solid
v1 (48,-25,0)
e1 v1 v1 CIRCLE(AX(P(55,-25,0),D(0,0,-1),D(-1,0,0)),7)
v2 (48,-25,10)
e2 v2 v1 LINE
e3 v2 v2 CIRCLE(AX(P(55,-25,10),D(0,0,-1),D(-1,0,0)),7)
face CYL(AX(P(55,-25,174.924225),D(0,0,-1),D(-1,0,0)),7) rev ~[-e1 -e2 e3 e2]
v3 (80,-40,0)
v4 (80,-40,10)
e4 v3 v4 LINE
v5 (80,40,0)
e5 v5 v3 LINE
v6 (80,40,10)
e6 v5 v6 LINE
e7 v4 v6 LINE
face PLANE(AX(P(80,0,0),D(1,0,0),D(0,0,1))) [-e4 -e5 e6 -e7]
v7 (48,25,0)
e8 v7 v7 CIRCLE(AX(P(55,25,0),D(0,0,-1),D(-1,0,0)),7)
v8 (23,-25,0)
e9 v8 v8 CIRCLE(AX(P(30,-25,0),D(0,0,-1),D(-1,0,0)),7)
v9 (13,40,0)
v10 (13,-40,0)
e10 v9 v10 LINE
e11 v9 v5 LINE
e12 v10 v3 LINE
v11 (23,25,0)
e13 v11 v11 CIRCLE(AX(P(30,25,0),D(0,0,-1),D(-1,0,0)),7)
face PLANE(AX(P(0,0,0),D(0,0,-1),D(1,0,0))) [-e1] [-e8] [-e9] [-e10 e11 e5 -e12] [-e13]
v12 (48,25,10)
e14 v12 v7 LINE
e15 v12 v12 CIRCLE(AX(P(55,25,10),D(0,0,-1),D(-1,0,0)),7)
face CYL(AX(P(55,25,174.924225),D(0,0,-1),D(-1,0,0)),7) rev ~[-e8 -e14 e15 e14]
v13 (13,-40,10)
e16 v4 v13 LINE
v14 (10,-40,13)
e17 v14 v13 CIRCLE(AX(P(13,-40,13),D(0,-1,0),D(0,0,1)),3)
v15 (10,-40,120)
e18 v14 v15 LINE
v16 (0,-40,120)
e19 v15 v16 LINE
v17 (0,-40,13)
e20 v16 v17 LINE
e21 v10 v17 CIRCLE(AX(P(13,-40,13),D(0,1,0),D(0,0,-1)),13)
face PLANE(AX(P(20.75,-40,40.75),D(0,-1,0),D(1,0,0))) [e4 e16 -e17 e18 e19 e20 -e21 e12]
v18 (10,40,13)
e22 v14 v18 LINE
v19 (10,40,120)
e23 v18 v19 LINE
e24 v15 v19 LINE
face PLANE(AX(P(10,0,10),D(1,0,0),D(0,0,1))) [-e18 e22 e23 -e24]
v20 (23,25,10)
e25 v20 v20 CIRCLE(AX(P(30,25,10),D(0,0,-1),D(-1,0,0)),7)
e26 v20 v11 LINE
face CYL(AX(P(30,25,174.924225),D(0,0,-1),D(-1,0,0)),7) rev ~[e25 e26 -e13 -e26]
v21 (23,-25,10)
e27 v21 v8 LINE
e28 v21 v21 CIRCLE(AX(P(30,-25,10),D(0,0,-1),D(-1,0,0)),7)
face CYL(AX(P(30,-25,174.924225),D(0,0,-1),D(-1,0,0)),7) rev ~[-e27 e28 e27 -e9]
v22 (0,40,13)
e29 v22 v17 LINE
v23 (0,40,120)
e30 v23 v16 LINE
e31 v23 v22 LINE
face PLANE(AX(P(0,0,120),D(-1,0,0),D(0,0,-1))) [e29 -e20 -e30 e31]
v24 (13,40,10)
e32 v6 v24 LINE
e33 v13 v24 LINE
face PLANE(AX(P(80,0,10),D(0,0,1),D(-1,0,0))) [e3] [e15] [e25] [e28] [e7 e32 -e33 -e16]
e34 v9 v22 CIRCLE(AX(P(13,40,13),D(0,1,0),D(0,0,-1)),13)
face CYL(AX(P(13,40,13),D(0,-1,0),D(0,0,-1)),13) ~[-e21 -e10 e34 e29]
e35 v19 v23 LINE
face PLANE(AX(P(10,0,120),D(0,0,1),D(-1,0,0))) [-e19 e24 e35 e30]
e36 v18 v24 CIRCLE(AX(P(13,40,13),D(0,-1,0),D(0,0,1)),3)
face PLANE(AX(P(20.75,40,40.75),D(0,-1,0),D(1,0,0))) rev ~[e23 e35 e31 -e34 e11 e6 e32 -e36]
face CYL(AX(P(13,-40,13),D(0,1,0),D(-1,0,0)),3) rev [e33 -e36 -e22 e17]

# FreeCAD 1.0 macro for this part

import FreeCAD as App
import Part
import Sketcher
from FreeCAD import Vector


def edges_at(feature, points):
    """Names of the edges that pass closest to the given points."""
    edges = feature.Shape.Edges
    near = lambda p: min(range(len(edges)), key=lambda i: edges[i].distToShape(Part.Vertex(*p))[0])
    return sorted({f"Edge{near(p) + 1}" for p in points})


def add_polygon(sketch, points):
    """Adds a closed chain of lines whose ends are joined by coincident constraints."""
    first, n = sketch.GeometryCount, len(points)
    for a, b in zip(points, points[1:] + points[:1]):
        sketch.addGeometry(Part.LineSegment(App.Vector(*a, 0), App.Vector(*b, 0)), False)
    for i in range(n):
        sketch.addConstraint(Sketcher.Constraint("Coincident", first + i, 2, first + (i + 1) % n, 1))

doc = App.newDocument("Part")
params = doc.addObject("Spreadsheet::Sheet", "Params")
for row, (alias, value) in enumerate([
    ("sketch1_width", "10 mm"),
    ("sketch1_width2", "80 mm"),
    ("sketch1_height", "120 mm"),
    ("pad1_length", "80 mm"),
    ("fillet_radius", "3 mm"),
    ("fillet2_radius", "13 mm"),
    ("sketch2_diameter", "14 mm"),
    ("hole_diameter", "14 mm"),
], start=1):
    params.set(f"A{row}", alias)
    params.set(f"B{row}", "=" + value)
    params.setAlias(f"B{row}", alias)

body = doc.addObject("PartDesign::Body", "Body")

sketch1 = body.newObject("Sketcher::SketchObject", "Sketch")
sketch1.AttachmentSupport = (doc.getObject("XZ_Plane"), [""])
sketch1.MapMode = "FlatFace"
add_polygon(sketch1, [(10, 120), (0, 120), (0, 0), (80, 0), (80, 10), (10, 10)])
sketch1.addConstraint(Sketcher.Constraint("Horizontal", 0))
sketch1.addConstraint(Sketcher.Constraint("Vertical", 1))
sketch1.addConstraint(Sketcher.Constraint("Horizontal", 2))
sketch1.addConstraint(Sketcher.Constraint("Vertical", 3))
sketch1.addConstraint(Sketcher.Constraint("Horizontal", 4))
sketch1.addConstraint(Sketcher.Constraint("Vertical", 5))
sketch1.addConstraint(Sketcher.Constraint("Coincident", 1, 2, -1, 1))
sketch1.addConstraint(Sketcher.Constraint("Equal", 0, 3))
sketch1.addConstraint(Sketcher.Constraint("DistanceX", 0, 2, 0, 1, 10.0))
sketch1.addConstraint(Sketcher.Constraint("DistanceX", 2, 1, 2, 2, 80.0))
sketch1.addConstraint(Sketcher.Constraint("DistanceY", 1, 2, 1, 1, 120.0))
sketch1.setExpression("Constraints[14]", "Params.sketch1_width")
sketch1.setExpression("Constraints[15]", "Params.sketch1_width2")
sketch1.setExpression("Constraints[16]", "Params.sketch1_height")
pad1 = body.newObject("PartDesign::Pad", "Pad")
pad1.Profile = sketch1
pad1.setExpression("Length", "Params.pad1_length")
pad1.Midplane = True
doc.recompute()

fillet = body.newObject("PartDesign::Fillet", "Fillet")
fillet.Base = (pad1, edges_at(pad1, [(10, 0, 10)]))
fillet.setExpression("Radius", "Params.fillet_radius")
doc.recompute()

fillet2 = body.newObject("PartDesign::Fillet", "Fillet001")
fillet2.Base = (fillet, edges_at(fillet, [(0, 0, 0)]))
fillet2.setExpression("Radius", "Params.fillet2_radius")

sketch2 = body.newObject("Sketcher::SketchObject", "Sketch001")
sketch2.AttachmentSupport = (doc.getObject("XY_Plane"), [""])
sketch2.MapMode = "FlatFace"
sketch2.AttachmentOffset = App.Placement(Vector(0, 0, 10), App.Rotation())
sketch2.addGeometry(Part.Circle(Vector(55, 25, 0), Vector(0, 0, 1), 7), False)
sketch2.addGeometry(Part.Circle(Vector(55, -25, 0), Vector(0, 0, 1), 7), False)
sketch2.addGeometry(Part.Circle(Vector(30, -25, 0), Vector(0, 0, 1), 7), False)
sketch2.addGeometry(Part.Circle(Vector(30, 25, 0), Vector(0, 0, 1), 7), False)
sketch2.addConstraint(Sketcher.Constraint("Equal", 0, 1))
sketch2.addConstraint(Sketcher.Constraint("Equal", 1, 2))
sketch2.addConstraint(Sketcher.Constraint("Equal", 2, 3))
sketch2.addConstraint(Sketcher.Constraint("Symmetric", 0, 3, 1, 3, -1))
sketch2.addConstraint(Sketcher.Constraint("Symmetric", 2, 3, 3, 3, -1))
sketch2.addConstraint(Sketcher.Constraint("Horizontal", 1, 3, 2, 3))
sketch2.addConstraint(Sketcher.Constraint("Diameter", 0, 14.0))
sketch2.addConstraint(Sketcher.Constraint("DistanceX", -1, 1, 0, 3, 55.0))
sketch2.addConstraint(Sketcher.Constraint("DistanceY", -1, 1, 0, 3, 25.0))
sketch2.addConstraint(Sketcher.Constraint("DistanceX", -1, 1, 2, 3, 30.0))
sketch2.setExpression("Constraints[6]", "Params.sketch2_diameter")
doc.recompute()
hole = body.newObject("PartDesign::Hole", "Hole")
hole.Profile = sketch2
hole.ThreadType = "None"
hole.setExpression("Diameter", "Params.hole_diameter")
hole.DepthType = "ThroughAll"

doc.recompute()
